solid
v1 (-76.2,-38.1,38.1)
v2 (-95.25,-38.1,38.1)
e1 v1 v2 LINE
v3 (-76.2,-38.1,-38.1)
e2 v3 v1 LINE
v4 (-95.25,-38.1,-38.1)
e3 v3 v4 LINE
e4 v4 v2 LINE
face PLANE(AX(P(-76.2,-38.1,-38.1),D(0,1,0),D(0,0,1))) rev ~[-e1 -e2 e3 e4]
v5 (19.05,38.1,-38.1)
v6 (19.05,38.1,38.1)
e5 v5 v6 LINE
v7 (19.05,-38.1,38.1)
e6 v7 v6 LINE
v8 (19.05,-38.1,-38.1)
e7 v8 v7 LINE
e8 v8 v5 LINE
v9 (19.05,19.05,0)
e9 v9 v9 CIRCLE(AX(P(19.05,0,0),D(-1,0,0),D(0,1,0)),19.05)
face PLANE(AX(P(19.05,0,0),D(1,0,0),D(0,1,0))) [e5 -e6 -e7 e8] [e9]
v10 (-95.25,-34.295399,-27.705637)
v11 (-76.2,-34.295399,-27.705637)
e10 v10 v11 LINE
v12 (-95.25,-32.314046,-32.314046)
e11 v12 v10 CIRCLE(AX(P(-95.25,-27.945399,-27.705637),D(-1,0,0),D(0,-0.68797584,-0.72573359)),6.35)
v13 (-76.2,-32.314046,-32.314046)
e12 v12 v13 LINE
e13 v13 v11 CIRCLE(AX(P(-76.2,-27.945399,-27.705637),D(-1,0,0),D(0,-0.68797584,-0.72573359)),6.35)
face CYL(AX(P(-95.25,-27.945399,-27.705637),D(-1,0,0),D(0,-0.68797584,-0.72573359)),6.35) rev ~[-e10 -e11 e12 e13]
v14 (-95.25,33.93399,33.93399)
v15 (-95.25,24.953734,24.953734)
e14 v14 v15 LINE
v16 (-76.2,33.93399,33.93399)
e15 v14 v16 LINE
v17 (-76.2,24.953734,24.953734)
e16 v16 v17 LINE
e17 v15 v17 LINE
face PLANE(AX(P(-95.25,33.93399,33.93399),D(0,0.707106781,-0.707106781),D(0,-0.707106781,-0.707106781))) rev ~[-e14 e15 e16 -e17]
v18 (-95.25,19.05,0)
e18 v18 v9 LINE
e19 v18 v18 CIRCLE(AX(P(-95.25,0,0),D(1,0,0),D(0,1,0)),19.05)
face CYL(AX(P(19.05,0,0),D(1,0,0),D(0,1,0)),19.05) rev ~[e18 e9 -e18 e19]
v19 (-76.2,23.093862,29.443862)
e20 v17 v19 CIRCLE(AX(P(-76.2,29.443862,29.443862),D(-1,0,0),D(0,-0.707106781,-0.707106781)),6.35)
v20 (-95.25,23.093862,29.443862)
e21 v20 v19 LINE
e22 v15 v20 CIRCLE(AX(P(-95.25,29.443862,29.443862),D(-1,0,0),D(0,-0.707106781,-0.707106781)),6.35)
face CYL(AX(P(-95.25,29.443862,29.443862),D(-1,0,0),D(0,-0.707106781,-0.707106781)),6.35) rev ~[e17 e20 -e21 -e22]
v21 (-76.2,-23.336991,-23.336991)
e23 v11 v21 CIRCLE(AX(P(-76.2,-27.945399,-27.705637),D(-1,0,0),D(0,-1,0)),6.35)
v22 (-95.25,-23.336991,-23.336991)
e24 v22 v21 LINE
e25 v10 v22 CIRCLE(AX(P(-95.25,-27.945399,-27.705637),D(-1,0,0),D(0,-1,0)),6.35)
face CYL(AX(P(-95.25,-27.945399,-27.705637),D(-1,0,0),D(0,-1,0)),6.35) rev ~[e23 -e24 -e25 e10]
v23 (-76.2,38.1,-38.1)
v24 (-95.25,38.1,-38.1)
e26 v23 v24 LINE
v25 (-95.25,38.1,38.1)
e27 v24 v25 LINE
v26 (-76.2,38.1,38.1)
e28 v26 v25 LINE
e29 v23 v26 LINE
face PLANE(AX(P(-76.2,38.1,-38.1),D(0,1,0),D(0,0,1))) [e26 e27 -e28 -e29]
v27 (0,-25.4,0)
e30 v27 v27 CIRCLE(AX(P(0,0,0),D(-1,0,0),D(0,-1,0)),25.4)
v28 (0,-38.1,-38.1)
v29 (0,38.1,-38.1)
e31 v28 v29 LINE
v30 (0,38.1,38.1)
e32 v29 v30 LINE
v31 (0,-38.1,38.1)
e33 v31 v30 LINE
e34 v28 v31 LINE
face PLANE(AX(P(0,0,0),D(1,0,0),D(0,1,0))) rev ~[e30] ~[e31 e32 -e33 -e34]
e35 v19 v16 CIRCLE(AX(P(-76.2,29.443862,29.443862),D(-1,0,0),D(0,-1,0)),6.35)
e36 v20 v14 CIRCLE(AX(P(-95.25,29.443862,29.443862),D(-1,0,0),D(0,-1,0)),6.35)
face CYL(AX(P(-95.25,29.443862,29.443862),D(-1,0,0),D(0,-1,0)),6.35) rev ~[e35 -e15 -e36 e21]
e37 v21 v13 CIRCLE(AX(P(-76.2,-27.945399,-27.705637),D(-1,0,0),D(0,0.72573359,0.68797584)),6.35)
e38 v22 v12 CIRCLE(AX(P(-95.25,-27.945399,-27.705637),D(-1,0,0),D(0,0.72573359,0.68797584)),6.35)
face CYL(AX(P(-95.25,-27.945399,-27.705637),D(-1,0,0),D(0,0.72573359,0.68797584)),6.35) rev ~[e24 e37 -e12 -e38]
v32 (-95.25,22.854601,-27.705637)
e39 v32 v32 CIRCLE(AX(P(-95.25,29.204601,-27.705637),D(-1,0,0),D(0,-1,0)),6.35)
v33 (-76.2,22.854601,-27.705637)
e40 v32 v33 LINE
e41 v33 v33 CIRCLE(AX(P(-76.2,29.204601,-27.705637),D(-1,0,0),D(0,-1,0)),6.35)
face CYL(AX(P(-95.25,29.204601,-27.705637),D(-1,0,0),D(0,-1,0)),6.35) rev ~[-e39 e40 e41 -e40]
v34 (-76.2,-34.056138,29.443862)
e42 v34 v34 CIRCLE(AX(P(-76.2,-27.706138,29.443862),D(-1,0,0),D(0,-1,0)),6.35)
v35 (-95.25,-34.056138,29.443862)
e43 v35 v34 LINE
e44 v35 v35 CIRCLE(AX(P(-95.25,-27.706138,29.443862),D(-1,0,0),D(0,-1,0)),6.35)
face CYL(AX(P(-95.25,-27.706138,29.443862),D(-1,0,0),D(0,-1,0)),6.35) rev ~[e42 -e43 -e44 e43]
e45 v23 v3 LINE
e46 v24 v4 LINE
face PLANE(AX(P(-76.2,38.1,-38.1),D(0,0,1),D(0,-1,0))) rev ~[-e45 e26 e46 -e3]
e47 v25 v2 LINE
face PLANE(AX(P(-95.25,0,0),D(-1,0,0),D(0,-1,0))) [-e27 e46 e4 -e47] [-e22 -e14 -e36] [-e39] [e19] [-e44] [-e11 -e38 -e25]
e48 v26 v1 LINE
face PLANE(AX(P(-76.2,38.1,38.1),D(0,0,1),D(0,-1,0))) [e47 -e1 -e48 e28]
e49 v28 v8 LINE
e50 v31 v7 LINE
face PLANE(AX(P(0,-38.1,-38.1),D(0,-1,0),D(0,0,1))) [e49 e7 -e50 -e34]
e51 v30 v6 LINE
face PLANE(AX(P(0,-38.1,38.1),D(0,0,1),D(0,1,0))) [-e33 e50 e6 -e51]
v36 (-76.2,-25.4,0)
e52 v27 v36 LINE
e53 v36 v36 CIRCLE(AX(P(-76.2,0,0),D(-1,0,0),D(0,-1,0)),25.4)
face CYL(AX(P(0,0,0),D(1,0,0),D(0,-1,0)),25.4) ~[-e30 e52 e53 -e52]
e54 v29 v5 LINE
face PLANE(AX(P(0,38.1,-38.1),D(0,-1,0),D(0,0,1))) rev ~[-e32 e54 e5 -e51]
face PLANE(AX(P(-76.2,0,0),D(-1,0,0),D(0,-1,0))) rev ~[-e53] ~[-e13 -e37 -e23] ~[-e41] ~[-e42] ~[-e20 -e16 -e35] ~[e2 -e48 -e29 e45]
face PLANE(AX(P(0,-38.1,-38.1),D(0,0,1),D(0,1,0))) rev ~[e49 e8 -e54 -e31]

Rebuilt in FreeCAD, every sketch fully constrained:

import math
import FreeCAD as App
import Part
import Sketcher
from FreeCAD import Vector
Q = App.Units.Quantity


def add_polygon(sketch, points):
    """Adds a closed chain of lines whose ends are joined by coincident constraints."""
    first, n = sketch.GeometryCount, len(points)
    for a, b in zip(points, points[1:] + points[:1]):
        sketch.addGeometry(Part.LineSegment(App.Vector(*a, 0), App.Vector(*b, 0)), False)
    for i in range(n):
        sketch.addConstraint(Sketcher.Constraint("Coincident", first + i, 2, first + (i + 1) % n, 1))

doc = App.newDocument("Part")
body = doc.addObject("PartDesign::Body", "Body")

# Sketch on YZ plane
sketch1 = doc.addObject("Sketcher::SketchObject", "Sketch")
body.addObject(sketch1)
sketch1.AttachmentSupport = (doc.YZ_Plane, [""])
sketch1.MapMode = "FlatFace"
add_polygon(sketch1, [(-38, 38), (-38, -38), (38, -38), (38, 38)])  # lines 0-3
sketch1.addConstraint(Sketcher.Constraint("Vertical", 0))
sketch1.addConstraint(Sketcher.Constraint("Horizontal", 1))
sketch1.addConstraint(Sketcher.Constraint("Vertical", 2))
sketch1.addConstraint(Sketcher.Constraint("Horizontal", 3))
sketch1.addConstraint(Sketcher.Constraint("Symmetric", 0, 2, 2, 2, -1, 1))
sketch1.addConstraint(Sketcher.Constraint("Equal", 3, 0))
sketch1.addConstraint(Sketcher.Constraint("DistanceX", 1, 1, 1, 2, Q("3 in")))
pad1 = doc.addObject("PartDesign::Pad", "Pad")
body.addObject(pad1)
pad1.Profile = sketch1
pad1.Length = Q("0.75 in")

# Sketch on YZ plane
sketch2 = doc.addObject("Sketcher::SketchObject", "Sketch001")
body.addObject(sketch2)
sketch2.AttachmentSupport = (doc.YZ_Plane, [""])
sketch2.MapMode = "FlatFace"
sketch2.addGeometry(Part.Circle(Vector(0, 0, 0), Vector(0, 0, 1), 25), False)
sketch2.addConstraint(Sketcher.Constraint("Coincident", 0, 3, -1, 1))
sketch2.addConstraint(Sketcher.Constraint("Diameter", 0, Q("2 in")))
pad2 = doc.addObject("PartDesign::Pad", "Pad001")
body.addObject(pad2)
pad2.Profile = sketch2
pad2.Length = Q("3 in")
pad2.Reversed = True
body2 = doc.addObject("PartDesign::Body", "Body001")

# Sketch on YZ plane
sketch3 = doc.addObject("Sketcher::SketchObject", "Sketch002")
body2.addObject(sketch3)
sketch3.AttachmentSupport = (doc.getObject("YZ_Plane001"), [""])
sketch3.MapMode = "FlatFace"
sketch3.AttachmentOffset = App.Placement(Vector(0, 0, -3 * 25.4), App.Rotation())
add_polygon(sketch3, [(38, 38), (38, -38), (-38, -38), (-38, 38)])  # lines 0-3
sketch3.addGeometry(Part.Circle(Vector(0, 0, 0), Vector(0, 0, 1), 25), False)  # 4
sketch3.addConstraint(Sketcher.Constraint("Vertical", 0))
sketch3.addConstraint(Sketcher.Constraint("Horizontal", 1))
sketch3.addConstraint(Sketcher.Constraint("Vertical", 2))
sketch3.addConstraint(Sketcher.Constraint("Horizontal", 3))
sketch3.addConstraint(Sketcher.Constraint("Coincident", 4, 3, -1, 1))
sketch3.addConstraint(Sketcher.Constraint("Symmetric", 0, 2, 2, 2, -1, 1))
sketch3.addConstraint(Sketcher.Constraint("Equal", 3, 0))
sketch3.addConstraint(Sketcher.Constraint("Diameter", 4, Q("2 in")))
sketch3.addConstraint(Sketcher.Constraint("DistanceX", 1, 2, 1, 1, Q("3 in")))
pad3 = doc.addObject("PartDesign::Pad", "Pad002")
body2.addObject(pad3)
pad3.Profile = sketch3
pad3.Length = Q("0.75 in")
pad3.Reversed = True
body3 = doc.addObject("PartDesign::Body", "Body002")

# Sketch on YZ plane
sketch4 = doc.addObject("Sketcher::SketchObject", "Sketch003")
body3.addObject(sketch4)
sketch4.AttachmentSupport = (doc.getObject("YZ_Plane002"), [""])
sketch4.MapMode = "FlatFace"
sketch4.AttachmentOffset = App.Placement(Vector(0, 0, -3 * 25.4), App.Rotation())
sketch4.addGeometry(Part.Circle(Vector(0, 0, 0), Vector(0, 0, 1), 25), False)
sketch4.addConstraint(Sketcher.Constraint("Coincident", 0, 3, -1, 1))
sketch4.addConstraint(Sketcher.Constraint("Diameter", 0, Q("2 in")))
pad4 = doc.addObject("PartDesign::Pad", "Pad003")
body3.addObject(pad4)
pad4.Profile = sketch4
pad4.Length = Q("0.75 in")
pad4.Reversed = True
body4 = doc.addObject("PartDesign::Body", "Body003")

# Sketch on YZ plane
sketch5 = doc.addObject("Sketcher::SketchObject", "Sketch004")
body4.addObject(sketch5)
sketch5.AttachmentSupport = (doc.getObject("YZ_Plane003"), [""])
sketch5.MapMode = "FlatFace"
sketch5.AttachmentOffset = App.Placement(Vector(0, 0, 0.75 * 25.4), App.Rotation())
sketch5.addGeometry(Part.Circle(Vector(0, 0, 0), Vector(0, 0, 1), 19), False)
sketch5.addConstraint(Sketcher.Constraint("Coincident", 0, 3, -1, 1))
sketch5.addConstraint(Sketcher.Constraint("Diameter", 0, Q("1.5 in")))
pad5 = doc.addObject("PartDesign::Pad", "Pad004")
body4.addObject(pad5)
pad5.Profile = sketch5
pad5.Length = Q("4.5 in")
pad5.Reversed = True
doc.recompute()

body5 = doc.addObject("PartDesign::Body", "Body004")
body5.BaseFeature = body4
boolean = doc.addObject("PartDesign::Boolean", "Boolean")
body.addObject(boolean)
boolean.Type = "Cut"
boolean.addObjects([body5])
doc.recompute()

# Sketch on YZ plane
sketch6 = doc.addObject("Sketcher::SketchObject", "Sketch005")
body.addObject(sketch6)
sketch6.AttachmentSupport = (doc.YZ_Plane, [""])
sketch6.MapMode = "FlatFace"
sketch6.AttachmentOffset = App.Placement(Vector(0, 0, -3.75 * 25.4), App.Rotation())
sketch6.addGeometry(Part.Circle(Vector(0, 0, 0), Vector(0, 0, 1), 19), False)
sketch6.addConstraint(Sketcher.Constraint("Coincident", 0, 3, -1, 1))
sketch6.addConstraint(Sketcher.Constraint("Diameter", 0, Q("1.5 in")))
pocket1 = doc.addObject("PartDesign::Pocket", "Pocket")
body.addObject(pocket1)
pocket1.Profile = sketch6
pocket1.Length = Q("23.94 in")
pocket1.Reversed = True
doc.recompute()

boolean2 = doc.addObject("PartDesign::Boolean", "Boolean001")
body3.addObject(boolean2)
boolean2.Type = "Cut"
boolean2.addObjects([body4])
doc.recompute()

boolean3 = doc.addObject("PartDesign::Boolean", "Boolean002")
body2.addObject(boolean3)
boolean3.Type = "Fuse"
boolean3.addObjects([body3])
doc.recompute()

boolean4 = doc.addObject("PartDesign::Boolean", "Boolean003")
body2.addObject(boolean4)
boolean4.Type = "Fuse"
boolean4.addObjects([body])

# Sketch on YZ plane
sketch7 = doc.addObject("Sketcher::SketchObject", "Sketch006")
body2.addObject(sketch7)
sketch7.AttachmentSupport = (doc.getObject("YZ_Plane001"), [""])
sketch7.MapMode = "FlatFace"
sketch7.AttachmentOffset = App.Placement(Vector(0, 0, -3.75 * 25.4), App.Rotation())
sketch7.addGeometry(Part.Circle(Vector(29.2, -27.7, 0), Vector(0, 0, 1), 6.3), False)
sketch7.addGeometry(Part.Circle(Vector(-27.7, 29.4, 0), Vector(0, 0, 1), 6.3), False)
sketch7.addGeometry(Part.ArcOfCircle(Part.Circle(Vector(29.4, 29.4, 0), Vector(0, 0, 1), 6.3), math.radians(45), math.radians(180)), False)
sketch7.addGeometry(Part.LineSegment(Vector(33.9, 33.9, 0), Vector(25, 25, 0)), False)
sketch7.addGeometry(Part.ArcOfCircle(Part.Circle(Vector(29.4, 29.4, 0), Vector(0, 0, 1), 6.3), math.radians(180), math.radians(225)), False)
sketch7.addGeometry(Part.ArcOfCircle(Part.Circle(Vector(-27.9, -27.7, 0), Vector(0, 0, 1), 6.3), math.radians(-133), math.radians(43)), False)
sketch7.addGeometry(Part.ArcOfCircle(Part.Circle(Vector(-27.9, -27.7, 0), Vector(0, 0, 1), 6.3), math.radians(180), math.radians(227)), False)
sketch7.addGeometry(Part.ArcOfCircle(Part.Circle(Vector(-27.9, -27.7, 0), Vector(0, 0, 1), 6.3), math.radians(43), math.radians(180)), False)
sketch7.addConstraint(Sketcher.Constraint("Coincident", 2, 1, 3, 1))
sketch7.addConstraint(Sketcher.Constraint("Coincident", 3, 2, 4, 2))
sketch7.addConstraint(Sketcher.Constraint("Tangent", 4, 1, 2, 2))
sketch7.addConstraint(Sketcher.Constraint("Tangent", 5, 1, 6, 2))
sketch7.addConstraint(Sketcher.Constraint("Tangent", 6, 1, 7, 2))
sketch7.addConstraint(Sketcher.Constraint("Tangent", 7, 1, 5, 2))
sketch7.addConstraint(Sketcher.Constraint("Equal", 0, 1))
sketch7.addConstraint(Sketcher.Constraint("Equal", 1, 2))
sketch7.addConstraint(Sketcher.Constraint("Equal", 2, 4))
sketch7.addConstraint(Sketcher.Constraint("Equal", 4, 5))
sketch7.addConstraint(Sketcher.Constraint("Horizontal", 1, 3, 2, 3))
sketch7.addConstraint(Sketcher.Constraint("Horizontal", 0, 3, 5, 3))
sketch7.addConstraint(Sketcher.Constraint("Horizontal", 2, 3, 4, 1))
sketch7.addConstraint(Sketcher.Constraint("Horizontal", 7, 3, 6, 1))
sketch7.addConstraint(Sketcher.Constraint("Diameter", 0, Q("0.5 in")))
sketch7.addConstraint(Sketcher.Constraint("Angle", 3, Q("-135 deg")))
sketch7.addConstraint(Sketcher.Constraint("DistanceX", 1, 3, 4, 1, Q("2 in")))
sketch7.addConstraint(Sketcher.Constraint("DistanceX", 5, 3, 0, 3, Q("2.25 in")))
sketch7.addConstraint(Sketcher.Constraint("DistanceX", -1, 1, 0, 3, 29.204601))
sketch7.addConstraint(Sketcher.Constraint("DistanceY", 0, 3, 1, 3, 57.149499))
sketch7.addConstraint(Sketcher.Constraint("DistanceX", 1, 3, -1, 1, 27.706138))
sketch7.addConstraint(Sketcher.Constraint("DistanceY", -1, 1, 1, 3, 29.443862))
sketch7.addConstraint(Sketcher.Constraint("DistanceX", -1, 1, 2, 1, 33.93399))
sketch7.addConstraint(Sketcher.Constraint("DistanceX", 7, 1, -1, 1, 23.336991))
sketch7.addConstraint(Sketcher.Constraint("DistanceY", 5, 1, 6, 3, 4.608408))
pocket2 = doc.addObject("PartDesign::Pocket", "Pocket001")
body2.addObject(pocket2)
pocket2.Profile = sketch7
pocket2.Length = Q("1.99 in")
pocket2.Reversed = True

doc.recompute()
